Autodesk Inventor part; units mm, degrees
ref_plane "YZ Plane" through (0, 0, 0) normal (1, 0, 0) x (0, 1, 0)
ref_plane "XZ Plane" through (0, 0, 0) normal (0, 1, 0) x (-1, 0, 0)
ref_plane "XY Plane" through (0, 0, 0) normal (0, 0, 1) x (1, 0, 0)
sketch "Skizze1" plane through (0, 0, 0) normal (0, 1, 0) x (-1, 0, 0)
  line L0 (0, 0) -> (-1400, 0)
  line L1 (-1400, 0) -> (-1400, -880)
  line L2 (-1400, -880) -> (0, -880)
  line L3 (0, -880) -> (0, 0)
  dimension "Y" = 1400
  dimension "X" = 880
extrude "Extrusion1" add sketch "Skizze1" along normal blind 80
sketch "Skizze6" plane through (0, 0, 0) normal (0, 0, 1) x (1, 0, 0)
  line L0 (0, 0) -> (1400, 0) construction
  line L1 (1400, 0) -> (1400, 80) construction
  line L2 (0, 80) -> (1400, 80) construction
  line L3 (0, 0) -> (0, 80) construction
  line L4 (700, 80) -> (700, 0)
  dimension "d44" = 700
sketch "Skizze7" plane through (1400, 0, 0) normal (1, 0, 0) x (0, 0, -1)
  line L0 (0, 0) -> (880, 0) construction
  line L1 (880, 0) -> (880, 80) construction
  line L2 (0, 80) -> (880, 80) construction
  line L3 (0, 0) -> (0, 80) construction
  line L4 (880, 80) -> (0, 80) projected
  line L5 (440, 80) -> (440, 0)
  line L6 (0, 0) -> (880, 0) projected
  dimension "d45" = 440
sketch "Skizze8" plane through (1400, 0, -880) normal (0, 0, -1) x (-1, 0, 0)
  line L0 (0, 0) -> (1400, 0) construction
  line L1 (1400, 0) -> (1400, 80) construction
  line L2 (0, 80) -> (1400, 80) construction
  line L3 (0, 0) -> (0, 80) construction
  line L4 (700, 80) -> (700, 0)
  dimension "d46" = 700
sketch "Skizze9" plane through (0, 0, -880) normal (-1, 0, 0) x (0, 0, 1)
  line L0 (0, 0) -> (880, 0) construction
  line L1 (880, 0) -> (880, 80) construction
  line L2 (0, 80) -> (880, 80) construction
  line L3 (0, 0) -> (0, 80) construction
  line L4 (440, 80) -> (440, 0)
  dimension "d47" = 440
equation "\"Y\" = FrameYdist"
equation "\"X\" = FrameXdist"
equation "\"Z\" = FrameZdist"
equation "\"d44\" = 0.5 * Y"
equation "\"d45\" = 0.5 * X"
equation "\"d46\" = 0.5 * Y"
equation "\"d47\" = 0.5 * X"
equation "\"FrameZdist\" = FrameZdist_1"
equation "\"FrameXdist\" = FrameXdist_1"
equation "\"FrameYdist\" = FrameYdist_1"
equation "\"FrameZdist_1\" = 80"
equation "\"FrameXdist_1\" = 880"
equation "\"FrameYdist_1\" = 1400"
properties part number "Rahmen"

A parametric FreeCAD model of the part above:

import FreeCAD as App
import Part
import Sketcher
from FreeCAD import Vector

doc = App.newDocument("Part")
body = doc.addObject("PartDesign::Body", "Body")

sketch1 = body.newObject("Sketcher::SketchObject", "Sketch")
sketch1.AttachmentSupport = (doc.getObject("XZ_Plane"), [""])
sketch1.MapMode = "FlatFace"
sketch1.addGeometry(Part.LineSegment(Vector(0, -880, 0), Vector(0, 0, 0)), False)
sketch1.addGeometry(Part.LineSegment(Vector(0, 0, 0), Vector(1400, 0, 0)), False)
sketch1.addGeometry(Part.LineSegment(Vector(1400, 0, 0), Vector(1400, -880, 0)), False)
sketch1.addGeometry(Part.LineSegment(Vector(1400, -880, 0), Vector(0, -880, 0)), False)
sketch1.addConstraint(Sketcher.Constraint("Coincident", 0, 2, 1, 1))
sketch1.addConstraint(Sketcher.Constraint("Coincident", 1, 2, 2, 1))
sketch1.addConstraint(Sketcher.Constraint("Coincident", 2, 2, 3, 1))
sketch1.addConstraint(Sketcher.Constraint("Coincident", 3, 2, 0, 1))
sketch1.addConstraint(Sketcher.Constraint("Vertical", 0))
sketch1.addConstraint(Sketcher.Constraint("Horizontal", 1))
sketch1.addConstraint(Sketcher.Constraint("Vertical", 2))
sketch1.addConstraint(Sketcher.Constraint("Horizontal", 3))
sketch1.addConstraint(Sketcher.Constraint("Coincident", 0, 2, -1, 1))
sketch1.addConstraint(Sketcher.Constraint("DistanceX", 1, 1, 1, 2, 1400.0))
sketch1.addConstraint(Sketcher.Constraint("DistanceY", 0, 1, 0, 2, 880.0))
pad1 = body.newObject("PartDesign::Pad", "Pad")
pad1.Profile = sketch1
pad1.Length = 80
pad1.Reversed = True

doc.recompute()
